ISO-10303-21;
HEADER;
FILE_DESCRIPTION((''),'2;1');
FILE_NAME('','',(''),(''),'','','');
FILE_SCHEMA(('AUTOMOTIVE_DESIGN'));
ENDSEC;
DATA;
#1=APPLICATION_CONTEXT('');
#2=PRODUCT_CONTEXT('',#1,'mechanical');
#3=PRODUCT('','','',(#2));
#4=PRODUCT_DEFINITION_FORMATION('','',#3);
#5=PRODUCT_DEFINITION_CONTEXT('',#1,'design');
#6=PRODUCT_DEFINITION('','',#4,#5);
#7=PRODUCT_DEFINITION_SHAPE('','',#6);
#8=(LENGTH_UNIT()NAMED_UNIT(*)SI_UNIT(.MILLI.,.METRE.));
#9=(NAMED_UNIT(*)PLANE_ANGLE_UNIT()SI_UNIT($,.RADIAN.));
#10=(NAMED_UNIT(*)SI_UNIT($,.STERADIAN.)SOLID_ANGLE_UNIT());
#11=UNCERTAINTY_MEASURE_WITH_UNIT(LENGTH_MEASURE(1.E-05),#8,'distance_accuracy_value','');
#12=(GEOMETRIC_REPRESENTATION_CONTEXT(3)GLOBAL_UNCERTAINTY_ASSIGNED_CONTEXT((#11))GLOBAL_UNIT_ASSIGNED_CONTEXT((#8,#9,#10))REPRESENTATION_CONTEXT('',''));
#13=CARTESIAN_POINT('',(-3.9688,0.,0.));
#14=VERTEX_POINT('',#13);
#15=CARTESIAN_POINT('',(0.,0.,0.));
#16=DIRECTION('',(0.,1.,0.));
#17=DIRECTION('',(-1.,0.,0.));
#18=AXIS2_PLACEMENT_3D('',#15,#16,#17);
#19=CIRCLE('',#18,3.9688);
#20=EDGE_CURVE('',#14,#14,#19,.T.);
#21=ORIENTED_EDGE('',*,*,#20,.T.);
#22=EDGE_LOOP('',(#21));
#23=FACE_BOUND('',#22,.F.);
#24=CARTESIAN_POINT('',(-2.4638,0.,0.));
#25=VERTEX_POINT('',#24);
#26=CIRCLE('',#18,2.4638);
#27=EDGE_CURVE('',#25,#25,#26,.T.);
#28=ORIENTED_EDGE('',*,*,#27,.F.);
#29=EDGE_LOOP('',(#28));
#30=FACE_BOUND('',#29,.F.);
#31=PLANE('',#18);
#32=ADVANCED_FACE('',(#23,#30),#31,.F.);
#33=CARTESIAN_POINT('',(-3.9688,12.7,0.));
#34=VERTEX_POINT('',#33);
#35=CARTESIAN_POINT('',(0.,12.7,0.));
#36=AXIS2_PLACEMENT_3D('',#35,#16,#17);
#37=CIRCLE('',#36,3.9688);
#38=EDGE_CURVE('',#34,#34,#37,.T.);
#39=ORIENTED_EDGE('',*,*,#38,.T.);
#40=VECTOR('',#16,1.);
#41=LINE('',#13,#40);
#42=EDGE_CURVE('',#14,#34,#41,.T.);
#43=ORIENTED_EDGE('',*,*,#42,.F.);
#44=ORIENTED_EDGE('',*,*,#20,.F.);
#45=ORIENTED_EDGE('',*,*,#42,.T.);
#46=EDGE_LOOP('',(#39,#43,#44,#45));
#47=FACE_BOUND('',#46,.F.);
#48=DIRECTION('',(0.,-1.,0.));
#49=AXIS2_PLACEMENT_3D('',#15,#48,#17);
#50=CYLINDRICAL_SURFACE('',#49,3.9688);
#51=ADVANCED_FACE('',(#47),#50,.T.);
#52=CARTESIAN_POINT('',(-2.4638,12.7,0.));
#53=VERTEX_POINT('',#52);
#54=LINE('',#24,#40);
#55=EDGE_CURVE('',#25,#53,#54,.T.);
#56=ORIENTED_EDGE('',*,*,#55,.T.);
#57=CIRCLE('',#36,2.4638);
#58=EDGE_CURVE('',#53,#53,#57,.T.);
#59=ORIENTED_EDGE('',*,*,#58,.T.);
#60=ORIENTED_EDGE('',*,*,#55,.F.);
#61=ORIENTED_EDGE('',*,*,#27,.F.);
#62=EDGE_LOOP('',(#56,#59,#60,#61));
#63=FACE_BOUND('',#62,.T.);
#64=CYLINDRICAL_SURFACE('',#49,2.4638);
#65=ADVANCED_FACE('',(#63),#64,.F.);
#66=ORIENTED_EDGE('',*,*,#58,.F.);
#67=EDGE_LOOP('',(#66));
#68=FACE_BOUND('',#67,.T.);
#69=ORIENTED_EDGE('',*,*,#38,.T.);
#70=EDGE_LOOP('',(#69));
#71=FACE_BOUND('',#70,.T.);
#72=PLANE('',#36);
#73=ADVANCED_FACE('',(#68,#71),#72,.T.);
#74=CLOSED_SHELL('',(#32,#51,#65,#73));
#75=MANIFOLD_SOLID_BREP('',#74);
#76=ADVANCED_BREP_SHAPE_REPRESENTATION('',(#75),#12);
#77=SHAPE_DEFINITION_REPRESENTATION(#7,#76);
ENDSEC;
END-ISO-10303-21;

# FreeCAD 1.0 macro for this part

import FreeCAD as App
import Part
import Sketcher
from FreeCAD import Vector
Q = App.Units.Quantity

doc = App.newDocument("Part")
params = doc.addObject("Spreadsheet::Sheet", "Params")
for row, (alias, value) in enumerate([
    ("sketch1_diameter", "0.3125 in"),
    ("sketch1_diameter2", "0.194 in"),
    ("pad1_length", "0.5 in"),
], start=1):
    params.set(f"A{row}", alias)
    params.set(f"B{row}", "=" + value)
    params.setAlias(f"B{row}", alias)

body = doc.addObject("PartDesign::Body", "Body")

# Sketch on XZ plane
sketch1 = body.newObject("Sketcher::SketchObject", "Sketch")
sketch1.AttachmentSupport = (doc.getObject("XZ_Plane"), [""])
sketch1.MapMode = "FlatFace"
sketch1.addGeometry([
    Part.Circle(Vector(0, 0, 0), Vector(0, 0, 1), 3.9688),
    Part.Circle(Vector(0, 0, 0), Vector(0, 0, 1), 2.4638),
], False)
sketch1.addConstraint([
    Sketcher.Constraint("Coincident", 0, 3, -1, 1),
    Sketcher.Constraint("Coincident", 1, 3, -1, 1),
    Sketcher.Constraint("Diameter", 0, Q("0.3125 in")),
    Sketcher.Constraint("Diameter", 1, Q("0.194 in")),
])
sketch1.setExpression("Constraints[2]", "Params.sketch1_diameter")
sketch1.setExpression("Constraints[3]", "Params.sketch1_diameter2")
pad1 = body.newObject("PartDesign::Pad", "Pad")
pad1.Profile = sketch1
pad1.setExpression("Length", "Params.pad1_length")
pad1.Reversed = True

doc.recompute()
